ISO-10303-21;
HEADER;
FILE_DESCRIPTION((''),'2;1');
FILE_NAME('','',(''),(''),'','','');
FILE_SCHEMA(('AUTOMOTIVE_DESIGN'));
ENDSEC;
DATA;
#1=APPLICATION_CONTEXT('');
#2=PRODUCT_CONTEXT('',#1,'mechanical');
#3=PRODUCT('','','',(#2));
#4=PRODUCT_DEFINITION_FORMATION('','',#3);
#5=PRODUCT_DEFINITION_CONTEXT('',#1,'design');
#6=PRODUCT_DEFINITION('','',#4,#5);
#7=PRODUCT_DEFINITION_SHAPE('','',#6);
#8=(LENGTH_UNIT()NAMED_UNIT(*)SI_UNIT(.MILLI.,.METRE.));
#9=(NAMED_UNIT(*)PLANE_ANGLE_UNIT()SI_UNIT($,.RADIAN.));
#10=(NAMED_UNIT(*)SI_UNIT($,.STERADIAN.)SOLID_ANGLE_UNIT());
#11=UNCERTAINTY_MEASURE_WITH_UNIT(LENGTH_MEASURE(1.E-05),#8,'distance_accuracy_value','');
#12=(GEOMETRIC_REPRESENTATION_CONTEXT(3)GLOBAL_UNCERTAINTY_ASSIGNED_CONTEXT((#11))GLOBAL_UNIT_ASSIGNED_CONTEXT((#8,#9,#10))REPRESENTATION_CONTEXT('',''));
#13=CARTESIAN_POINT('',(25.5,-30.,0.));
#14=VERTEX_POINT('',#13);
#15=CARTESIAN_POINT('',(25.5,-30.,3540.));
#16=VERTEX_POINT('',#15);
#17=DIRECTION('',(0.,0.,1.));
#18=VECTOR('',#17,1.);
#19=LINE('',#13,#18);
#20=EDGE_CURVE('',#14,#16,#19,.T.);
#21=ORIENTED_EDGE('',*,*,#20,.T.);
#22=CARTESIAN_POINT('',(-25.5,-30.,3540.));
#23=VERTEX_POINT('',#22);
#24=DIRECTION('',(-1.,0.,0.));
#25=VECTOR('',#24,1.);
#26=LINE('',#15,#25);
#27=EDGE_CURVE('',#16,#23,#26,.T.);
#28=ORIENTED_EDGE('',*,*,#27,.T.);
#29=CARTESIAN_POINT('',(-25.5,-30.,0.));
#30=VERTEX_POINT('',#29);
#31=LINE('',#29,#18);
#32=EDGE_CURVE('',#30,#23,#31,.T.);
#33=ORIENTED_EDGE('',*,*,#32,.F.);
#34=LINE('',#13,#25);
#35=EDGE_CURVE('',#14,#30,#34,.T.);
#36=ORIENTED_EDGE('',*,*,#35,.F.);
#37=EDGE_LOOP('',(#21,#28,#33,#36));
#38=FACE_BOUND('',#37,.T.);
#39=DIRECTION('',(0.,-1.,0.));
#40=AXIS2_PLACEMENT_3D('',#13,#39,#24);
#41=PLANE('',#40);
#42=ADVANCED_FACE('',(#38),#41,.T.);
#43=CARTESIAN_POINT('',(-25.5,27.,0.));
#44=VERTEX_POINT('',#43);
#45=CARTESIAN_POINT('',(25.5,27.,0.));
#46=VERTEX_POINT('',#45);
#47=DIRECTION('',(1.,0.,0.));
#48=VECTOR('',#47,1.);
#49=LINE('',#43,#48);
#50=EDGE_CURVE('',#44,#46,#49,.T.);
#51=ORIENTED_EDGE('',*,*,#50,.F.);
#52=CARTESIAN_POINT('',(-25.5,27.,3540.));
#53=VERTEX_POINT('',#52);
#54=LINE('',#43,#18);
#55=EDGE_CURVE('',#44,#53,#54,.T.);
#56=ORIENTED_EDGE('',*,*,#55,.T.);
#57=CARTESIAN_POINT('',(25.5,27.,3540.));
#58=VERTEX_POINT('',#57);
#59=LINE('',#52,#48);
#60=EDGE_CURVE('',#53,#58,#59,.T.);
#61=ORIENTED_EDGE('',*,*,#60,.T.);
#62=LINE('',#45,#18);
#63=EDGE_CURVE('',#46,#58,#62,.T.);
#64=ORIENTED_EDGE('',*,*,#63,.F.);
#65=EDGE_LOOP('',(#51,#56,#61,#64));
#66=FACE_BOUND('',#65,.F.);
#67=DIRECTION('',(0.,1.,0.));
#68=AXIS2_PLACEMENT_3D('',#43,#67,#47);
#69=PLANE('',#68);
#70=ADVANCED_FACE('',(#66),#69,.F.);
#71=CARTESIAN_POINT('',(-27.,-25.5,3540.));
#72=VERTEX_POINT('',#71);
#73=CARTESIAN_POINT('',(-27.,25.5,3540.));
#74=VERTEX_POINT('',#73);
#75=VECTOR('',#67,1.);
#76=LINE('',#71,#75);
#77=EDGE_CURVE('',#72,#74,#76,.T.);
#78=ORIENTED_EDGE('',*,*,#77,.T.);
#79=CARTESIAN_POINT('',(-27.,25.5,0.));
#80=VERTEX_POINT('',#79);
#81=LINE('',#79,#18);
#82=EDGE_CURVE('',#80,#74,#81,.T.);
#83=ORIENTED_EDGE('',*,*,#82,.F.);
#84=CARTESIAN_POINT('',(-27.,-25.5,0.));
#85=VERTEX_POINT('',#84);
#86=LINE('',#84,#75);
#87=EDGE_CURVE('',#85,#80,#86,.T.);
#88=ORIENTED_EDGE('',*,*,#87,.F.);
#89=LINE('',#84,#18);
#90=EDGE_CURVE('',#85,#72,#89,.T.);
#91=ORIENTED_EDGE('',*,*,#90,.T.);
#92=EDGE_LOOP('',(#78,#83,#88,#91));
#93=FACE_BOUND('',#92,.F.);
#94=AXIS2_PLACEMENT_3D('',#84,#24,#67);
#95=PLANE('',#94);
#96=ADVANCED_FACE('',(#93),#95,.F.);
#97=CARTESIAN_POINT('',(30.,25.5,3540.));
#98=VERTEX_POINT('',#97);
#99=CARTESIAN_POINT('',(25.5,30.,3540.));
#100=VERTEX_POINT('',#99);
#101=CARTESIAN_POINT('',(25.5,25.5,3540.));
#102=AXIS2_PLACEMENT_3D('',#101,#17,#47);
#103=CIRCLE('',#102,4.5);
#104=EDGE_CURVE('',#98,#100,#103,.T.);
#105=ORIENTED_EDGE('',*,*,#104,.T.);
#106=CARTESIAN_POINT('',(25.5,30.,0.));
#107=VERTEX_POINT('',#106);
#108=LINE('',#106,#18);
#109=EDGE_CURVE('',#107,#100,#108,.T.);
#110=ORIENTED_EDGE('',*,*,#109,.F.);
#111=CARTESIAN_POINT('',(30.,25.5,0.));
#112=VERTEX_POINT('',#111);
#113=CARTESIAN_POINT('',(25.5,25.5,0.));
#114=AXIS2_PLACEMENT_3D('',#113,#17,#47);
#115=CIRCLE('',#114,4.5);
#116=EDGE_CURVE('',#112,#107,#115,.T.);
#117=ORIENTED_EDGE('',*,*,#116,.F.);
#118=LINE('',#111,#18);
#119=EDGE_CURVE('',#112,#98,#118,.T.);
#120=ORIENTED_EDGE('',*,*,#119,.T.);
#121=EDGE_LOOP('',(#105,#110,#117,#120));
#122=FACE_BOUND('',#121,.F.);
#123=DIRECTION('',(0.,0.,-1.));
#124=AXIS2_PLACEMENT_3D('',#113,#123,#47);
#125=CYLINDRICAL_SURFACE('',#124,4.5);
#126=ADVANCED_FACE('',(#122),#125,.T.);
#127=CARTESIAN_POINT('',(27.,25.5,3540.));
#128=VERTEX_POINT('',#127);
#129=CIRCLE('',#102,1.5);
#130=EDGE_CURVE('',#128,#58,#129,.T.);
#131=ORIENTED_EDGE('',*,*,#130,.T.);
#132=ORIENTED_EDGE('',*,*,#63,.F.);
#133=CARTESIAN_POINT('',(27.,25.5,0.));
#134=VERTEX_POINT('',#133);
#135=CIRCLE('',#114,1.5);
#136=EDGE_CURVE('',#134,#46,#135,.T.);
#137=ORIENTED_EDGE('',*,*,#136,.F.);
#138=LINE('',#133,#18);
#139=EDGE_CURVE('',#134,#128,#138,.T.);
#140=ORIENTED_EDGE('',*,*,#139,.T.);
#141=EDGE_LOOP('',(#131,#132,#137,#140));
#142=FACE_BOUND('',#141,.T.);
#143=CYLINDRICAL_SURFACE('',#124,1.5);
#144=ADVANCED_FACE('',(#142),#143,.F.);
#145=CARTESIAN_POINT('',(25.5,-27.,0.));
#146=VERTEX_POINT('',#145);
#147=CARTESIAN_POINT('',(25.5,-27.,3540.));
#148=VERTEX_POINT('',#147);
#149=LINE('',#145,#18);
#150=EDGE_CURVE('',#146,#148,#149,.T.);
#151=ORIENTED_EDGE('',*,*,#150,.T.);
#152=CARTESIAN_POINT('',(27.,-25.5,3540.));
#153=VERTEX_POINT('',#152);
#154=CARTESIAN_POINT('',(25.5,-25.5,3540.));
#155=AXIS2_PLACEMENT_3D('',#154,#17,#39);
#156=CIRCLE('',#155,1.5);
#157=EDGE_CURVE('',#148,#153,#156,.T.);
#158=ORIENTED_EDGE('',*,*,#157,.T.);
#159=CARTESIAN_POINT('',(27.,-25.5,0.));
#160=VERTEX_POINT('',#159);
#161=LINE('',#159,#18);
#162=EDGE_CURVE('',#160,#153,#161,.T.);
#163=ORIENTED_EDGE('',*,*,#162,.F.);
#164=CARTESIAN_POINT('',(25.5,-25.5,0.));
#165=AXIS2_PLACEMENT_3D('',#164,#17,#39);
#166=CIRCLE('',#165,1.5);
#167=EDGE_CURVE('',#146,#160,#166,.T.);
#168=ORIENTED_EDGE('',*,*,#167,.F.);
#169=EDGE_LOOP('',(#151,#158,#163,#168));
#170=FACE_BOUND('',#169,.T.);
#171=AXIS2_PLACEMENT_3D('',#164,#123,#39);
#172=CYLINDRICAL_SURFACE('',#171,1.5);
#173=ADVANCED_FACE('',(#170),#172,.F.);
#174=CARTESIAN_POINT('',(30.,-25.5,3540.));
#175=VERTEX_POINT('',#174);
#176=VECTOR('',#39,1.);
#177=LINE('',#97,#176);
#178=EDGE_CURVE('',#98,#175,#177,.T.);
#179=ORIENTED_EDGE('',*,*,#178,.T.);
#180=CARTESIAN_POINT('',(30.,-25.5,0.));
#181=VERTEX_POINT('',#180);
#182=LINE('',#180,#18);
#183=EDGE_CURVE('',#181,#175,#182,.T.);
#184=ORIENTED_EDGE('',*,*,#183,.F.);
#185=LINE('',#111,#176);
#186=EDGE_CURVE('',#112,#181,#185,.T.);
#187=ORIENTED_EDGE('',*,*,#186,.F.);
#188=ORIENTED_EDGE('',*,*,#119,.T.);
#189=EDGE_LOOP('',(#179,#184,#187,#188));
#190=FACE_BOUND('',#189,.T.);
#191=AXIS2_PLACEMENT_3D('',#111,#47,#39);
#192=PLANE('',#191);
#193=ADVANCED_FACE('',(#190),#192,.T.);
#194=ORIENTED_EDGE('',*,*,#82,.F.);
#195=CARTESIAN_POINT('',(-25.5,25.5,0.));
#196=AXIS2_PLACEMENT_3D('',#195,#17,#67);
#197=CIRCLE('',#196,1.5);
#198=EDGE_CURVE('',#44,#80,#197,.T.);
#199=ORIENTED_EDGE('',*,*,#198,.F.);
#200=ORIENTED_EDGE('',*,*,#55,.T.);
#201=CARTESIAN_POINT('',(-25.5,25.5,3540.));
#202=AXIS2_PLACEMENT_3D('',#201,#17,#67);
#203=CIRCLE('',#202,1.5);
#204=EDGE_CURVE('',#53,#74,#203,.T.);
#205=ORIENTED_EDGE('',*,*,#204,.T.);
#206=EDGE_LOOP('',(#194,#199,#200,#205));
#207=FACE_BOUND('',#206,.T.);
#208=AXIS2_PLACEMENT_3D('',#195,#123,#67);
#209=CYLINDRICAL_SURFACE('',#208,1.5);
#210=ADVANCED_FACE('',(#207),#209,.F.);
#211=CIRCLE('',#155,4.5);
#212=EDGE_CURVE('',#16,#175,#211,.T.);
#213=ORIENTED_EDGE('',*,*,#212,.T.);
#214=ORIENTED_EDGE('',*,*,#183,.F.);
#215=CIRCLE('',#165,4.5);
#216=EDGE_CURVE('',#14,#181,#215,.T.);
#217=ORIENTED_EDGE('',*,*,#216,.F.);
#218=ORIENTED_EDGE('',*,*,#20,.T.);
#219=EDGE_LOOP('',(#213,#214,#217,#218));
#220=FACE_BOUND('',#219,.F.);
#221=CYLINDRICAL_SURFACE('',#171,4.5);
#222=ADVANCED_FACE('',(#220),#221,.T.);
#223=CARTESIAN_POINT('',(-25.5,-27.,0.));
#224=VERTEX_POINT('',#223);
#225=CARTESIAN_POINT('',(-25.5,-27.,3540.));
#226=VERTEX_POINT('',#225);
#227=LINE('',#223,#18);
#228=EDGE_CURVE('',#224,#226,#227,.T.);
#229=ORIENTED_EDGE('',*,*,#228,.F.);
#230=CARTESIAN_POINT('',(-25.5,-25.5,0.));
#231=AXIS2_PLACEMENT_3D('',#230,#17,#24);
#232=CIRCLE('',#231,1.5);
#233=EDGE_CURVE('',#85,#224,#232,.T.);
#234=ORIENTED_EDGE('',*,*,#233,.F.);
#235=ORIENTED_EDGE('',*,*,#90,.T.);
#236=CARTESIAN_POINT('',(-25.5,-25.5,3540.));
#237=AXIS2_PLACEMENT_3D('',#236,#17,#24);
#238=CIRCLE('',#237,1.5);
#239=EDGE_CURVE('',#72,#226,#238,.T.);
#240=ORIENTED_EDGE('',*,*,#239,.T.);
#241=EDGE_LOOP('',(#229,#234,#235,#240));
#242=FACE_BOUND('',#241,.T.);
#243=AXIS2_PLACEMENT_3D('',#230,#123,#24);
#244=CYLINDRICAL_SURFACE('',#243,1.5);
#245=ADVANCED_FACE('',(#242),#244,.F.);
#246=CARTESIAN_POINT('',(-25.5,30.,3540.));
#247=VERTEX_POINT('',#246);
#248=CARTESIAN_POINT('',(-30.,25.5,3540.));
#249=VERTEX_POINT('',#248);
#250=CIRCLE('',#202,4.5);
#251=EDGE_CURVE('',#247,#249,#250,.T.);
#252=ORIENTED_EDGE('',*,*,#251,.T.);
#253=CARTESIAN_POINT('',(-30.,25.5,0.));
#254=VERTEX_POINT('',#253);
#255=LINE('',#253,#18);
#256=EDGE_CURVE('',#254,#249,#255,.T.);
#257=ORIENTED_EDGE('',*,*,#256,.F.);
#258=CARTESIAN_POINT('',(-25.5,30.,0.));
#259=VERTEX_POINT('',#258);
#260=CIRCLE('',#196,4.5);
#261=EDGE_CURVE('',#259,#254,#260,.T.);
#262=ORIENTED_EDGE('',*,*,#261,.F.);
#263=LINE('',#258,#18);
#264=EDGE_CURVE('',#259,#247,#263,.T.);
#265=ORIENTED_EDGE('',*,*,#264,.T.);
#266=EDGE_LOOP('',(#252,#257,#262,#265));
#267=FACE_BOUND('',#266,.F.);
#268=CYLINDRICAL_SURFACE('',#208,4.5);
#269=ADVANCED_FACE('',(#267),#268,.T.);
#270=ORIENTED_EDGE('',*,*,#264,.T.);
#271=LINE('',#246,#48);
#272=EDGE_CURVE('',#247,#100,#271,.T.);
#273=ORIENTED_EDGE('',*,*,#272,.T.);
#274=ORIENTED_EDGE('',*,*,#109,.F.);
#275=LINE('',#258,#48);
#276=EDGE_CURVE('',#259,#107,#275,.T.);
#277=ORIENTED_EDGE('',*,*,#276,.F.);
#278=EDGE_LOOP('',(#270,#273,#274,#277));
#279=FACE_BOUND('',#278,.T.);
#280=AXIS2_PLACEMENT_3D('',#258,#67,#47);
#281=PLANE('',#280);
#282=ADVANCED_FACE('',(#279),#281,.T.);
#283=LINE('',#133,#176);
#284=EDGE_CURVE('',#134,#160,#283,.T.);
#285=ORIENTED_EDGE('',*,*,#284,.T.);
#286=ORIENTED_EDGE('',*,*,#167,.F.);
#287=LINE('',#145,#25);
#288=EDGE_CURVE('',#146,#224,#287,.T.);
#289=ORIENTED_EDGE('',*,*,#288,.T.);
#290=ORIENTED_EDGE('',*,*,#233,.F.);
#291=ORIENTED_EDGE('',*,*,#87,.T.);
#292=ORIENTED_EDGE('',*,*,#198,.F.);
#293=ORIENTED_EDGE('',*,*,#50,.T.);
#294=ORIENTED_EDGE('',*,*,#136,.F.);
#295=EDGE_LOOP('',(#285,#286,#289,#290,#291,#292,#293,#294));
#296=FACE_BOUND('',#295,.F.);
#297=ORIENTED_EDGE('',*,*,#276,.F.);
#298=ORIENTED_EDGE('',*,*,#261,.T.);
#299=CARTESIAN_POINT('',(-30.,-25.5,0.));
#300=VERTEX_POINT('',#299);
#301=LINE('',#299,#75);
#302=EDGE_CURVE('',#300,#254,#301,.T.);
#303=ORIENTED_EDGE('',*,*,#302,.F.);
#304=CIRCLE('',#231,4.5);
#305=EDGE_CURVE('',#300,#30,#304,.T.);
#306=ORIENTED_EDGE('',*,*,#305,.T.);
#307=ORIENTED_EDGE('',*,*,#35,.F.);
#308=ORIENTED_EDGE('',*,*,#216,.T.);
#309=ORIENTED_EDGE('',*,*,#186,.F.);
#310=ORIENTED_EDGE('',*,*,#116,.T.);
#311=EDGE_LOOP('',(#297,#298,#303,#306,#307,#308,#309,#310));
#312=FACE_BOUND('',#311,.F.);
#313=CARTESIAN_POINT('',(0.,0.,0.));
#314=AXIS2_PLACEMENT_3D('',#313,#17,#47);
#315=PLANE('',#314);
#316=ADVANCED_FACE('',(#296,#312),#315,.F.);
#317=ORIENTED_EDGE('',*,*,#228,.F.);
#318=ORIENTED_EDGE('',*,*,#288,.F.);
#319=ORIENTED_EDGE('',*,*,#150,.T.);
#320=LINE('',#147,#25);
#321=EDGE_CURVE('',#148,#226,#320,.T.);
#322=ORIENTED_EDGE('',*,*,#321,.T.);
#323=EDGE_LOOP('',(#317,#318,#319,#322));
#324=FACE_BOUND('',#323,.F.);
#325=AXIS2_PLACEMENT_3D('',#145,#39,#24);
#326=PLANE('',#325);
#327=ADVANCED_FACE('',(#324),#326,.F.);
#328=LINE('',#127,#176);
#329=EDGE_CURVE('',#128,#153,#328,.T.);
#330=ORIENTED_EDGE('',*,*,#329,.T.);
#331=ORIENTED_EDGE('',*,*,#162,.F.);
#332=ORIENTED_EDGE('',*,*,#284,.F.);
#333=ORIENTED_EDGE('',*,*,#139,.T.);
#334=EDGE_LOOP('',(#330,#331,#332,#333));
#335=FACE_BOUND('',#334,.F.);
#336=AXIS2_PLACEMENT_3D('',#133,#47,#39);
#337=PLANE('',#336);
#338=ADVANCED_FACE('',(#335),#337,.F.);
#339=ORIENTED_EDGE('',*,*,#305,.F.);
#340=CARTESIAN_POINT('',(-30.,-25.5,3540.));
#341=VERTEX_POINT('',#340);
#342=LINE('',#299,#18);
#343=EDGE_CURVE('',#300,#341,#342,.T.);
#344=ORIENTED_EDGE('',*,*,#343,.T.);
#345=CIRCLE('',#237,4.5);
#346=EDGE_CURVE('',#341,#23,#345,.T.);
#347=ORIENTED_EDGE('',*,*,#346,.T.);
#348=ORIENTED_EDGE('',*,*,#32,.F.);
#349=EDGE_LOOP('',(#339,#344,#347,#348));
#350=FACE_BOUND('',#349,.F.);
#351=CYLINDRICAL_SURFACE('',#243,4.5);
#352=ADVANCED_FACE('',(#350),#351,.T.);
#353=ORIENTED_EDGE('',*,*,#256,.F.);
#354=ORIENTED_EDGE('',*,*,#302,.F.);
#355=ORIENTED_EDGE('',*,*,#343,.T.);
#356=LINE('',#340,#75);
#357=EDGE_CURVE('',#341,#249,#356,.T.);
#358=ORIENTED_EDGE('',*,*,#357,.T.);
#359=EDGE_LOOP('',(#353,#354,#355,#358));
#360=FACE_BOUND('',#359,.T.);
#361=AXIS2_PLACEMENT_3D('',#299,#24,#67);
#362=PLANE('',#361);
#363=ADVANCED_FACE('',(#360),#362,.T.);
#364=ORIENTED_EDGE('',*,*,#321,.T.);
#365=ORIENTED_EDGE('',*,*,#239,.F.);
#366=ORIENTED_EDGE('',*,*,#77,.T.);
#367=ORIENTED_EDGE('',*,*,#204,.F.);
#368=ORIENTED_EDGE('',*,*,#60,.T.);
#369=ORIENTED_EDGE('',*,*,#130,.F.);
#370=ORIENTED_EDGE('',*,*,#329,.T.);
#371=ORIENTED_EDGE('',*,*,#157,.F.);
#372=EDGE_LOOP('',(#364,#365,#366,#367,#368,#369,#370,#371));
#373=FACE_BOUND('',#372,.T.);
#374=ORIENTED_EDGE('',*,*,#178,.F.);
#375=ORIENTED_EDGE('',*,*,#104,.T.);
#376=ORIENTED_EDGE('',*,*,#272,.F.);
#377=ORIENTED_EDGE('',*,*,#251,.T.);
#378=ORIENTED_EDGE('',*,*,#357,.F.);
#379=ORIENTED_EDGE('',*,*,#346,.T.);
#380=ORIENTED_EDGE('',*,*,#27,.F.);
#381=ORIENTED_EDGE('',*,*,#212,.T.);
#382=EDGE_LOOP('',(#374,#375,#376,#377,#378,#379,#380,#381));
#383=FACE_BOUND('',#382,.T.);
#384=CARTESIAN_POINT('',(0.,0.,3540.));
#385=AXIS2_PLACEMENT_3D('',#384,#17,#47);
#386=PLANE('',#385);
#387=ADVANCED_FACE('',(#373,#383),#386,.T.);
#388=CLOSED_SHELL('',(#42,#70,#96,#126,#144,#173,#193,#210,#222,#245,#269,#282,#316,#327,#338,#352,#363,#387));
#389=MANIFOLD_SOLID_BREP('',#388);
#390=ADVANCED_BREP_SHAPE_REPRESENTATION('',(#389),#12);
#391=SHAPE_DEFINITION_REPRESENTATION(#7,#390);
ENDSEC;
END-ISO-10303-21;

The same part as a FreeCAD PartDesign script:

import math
import FreeCAD as App
import Part
import Sketcher
from FreeCAD import Vector
Q = App.Units.Quantity

doc = App.newDocument("Part")
params = doc.addObject("Spreadsheet::Sheet", "Params")
for row, (alias, value) in enumerate([
    ("sketch1_radius", "4.5 mm"),
    ("sketch1_radius2", "1.5 mm"),
    ("pad1_length", "3540 mm"),
], start=1):
    params.set(f"A{row}", alias)
    params.set(f"B{row}", "=" + value)
    params.setAlias(f"B{row}", alias)

body = doc.addObject("PartDesign::Body", "Body")

# Sketch on XY plane
sketch1 = doc.addObject("Sketcher::SketchObject", "Sketch")
body.addObject(sketch1)
sketch1.AttachmentSupport = (doc.XY_Plane, [""])
sketch1.MapMode = "FlatFace"
sketch1.addGeometry(Part.LineSegment(Vector(-30, 25.5, 0), Vector(-30, -25.5, 0)), False)
sketch1.addGeometry(Part.ArcOfCircle(Part.Circle(Vector(-25.5, -25.5, 0), Vector(0, 0, 1), 4.5), math.radians(180), math.radians(270)), False)
sketch1.addGeometry(Part.LineSegment(Vector(-25.5, -30, 0), Vector(25.5, -30, 0)), False)
sketch1.addGeometry(Part.ArcOfCircle(Part.Circle(Vector(25.5, -25.5, 0), Vector(0, 0, 1), 4.5), math.radians(-90), math.radians(0)), False)
sketch1.addGeometry(Part.LineSegment(Vector(30, -25.5, 0), Vector(30, 25.5, 0)), False)
sketch1.addGeometry(Part.ArcOfCircle(Part.Circle(Vector(25.5, 25.5, 0), Vector(0, 0, 1), 4.5), math.radians(0), math.radians(90)), False)
sketch1.addGeometry(Part.LineSegment(Vector(25.5, 30, 0), Vector(-25.5, 30, 0)), False)
sketch1.addGeometry(Part.ArcOfCircle(Part.Circle(Vector(-25.5, 25.5, 0), Vector(0, 0, 1), 4.5), math.radians(90), math.radians(180)), False)
sketch1.addGeometry(Part.ArcOfCircle(Part.Circle(Vector(-25.5, 25.5, 0), Vector(0, 0, 1), 1.5), math.radians(90), math.radians(180)), False)
sketch1.addGeometry(Part.LineSegment(Vector(-25.5, 27, 0), Vector(25.5, 27, 0)), False)
sketch1.addGeometry(Part.ArcOfCircle(Part.Circle(Vector(25.5, 25.5, 0), Vector(0, 0, 1), 1.5), math.radians(0), math.radians(90)), False)
sketch1.addGeometry(Part.LineSegment(Vector(27, 25.5, 0), Vector(27, -25.5, 0)), False)
sketch1.addGeometry(Part.ArcOfCircle(Part.Circle(Vector(25.5, -25.5, 0), Vector(0, 0, 1), 1.5), math.radians(-90), math.radians(0)), False)
sketch1.addGeometry(Part.LineSegment(Vector(25.5, -27, 0), Vector(-25.5, -27, 0)), False)
sketch1.addGeometry(Part.ArcOfCircle(Part.Circle(Vector(-25.5, -25.5, 0), Vector(0, 0, 1), 1.5), math.radians(180), math.radians(270)), False)
sketch1.addGeometry(Part.LineSegment(Vector(-27, -25.5, 0), Vector(-27, 25.5, 0)), False)
sketch1.addConstraint(Sketcher.Constraint("Tangent", 0, 2, 1, 1))
sketch1.addConstraint(Sketcher.Constraint("Tangent", 1, 2, 2, 1))
sketch1.addConstraint(Sketcher.Constraint("Tangent", 2, 2, 3, 1))
sketch1.addConstraint(Sketcher.Constraint("Tangent", 3, 2, 4, 1))
sketch1.addConstraint(Sketcher.Constraint("Tangent", 4, 2, 5, 1))
sketch1.addConstraint(Sketcher.Constraint("Tangent", 5, 2, 6, 1))
sketch1.addConstraint(Sketcher.Constraint("Tangent", 6, 2, 7, 1))
sketch1.addConstraint(Sketcher.Constraint("Tangent", 7, 2, 0, 1))
sketch1.addConstraint(Sketcher.Constraint("Tangent", 8, 1, 9, 1))
sketch1.addConstraint(Sketcher.Constraint("Tangent", 9, 2, 10, 2))
sketch1.addConstraint(Sketcher.Constraint("Tangent", 10, 1, 11, 1))
sketch1.addConstraint(Sketcher.Constraint("Tangent", 11, 2, 12, 2))
sketch1.addConstraint(Sketcher.Constraint("Tangent", 12, 1, 13, 1))
sketch1.addConstraint(Sketcher.Constraint("Tangent", 13, 2, 14, 2))
sketch1.addConstraint(Sketcher.Constraint("Tangent", 14, 1, 15, 1))
sketch1.addConstraint(Sketcher.Constraint("Tangent", 15, 2, 8, 2))
sketch1.addConstraint(Sketcher.Constraint("Vertical", 0))
sketch1.addConstraint(Sketcher.Constraint("Horizontal", 2))
sketch1.addConstraint(Sketcher.Constraint("Vertical", 4))
sketch1.addConstraint(Sketcher.Constraint("Horizontal", 6))
sketch1.addConstraint(Sketcher.Constraint("Horizontal", 9))
sketch1.addConstraint(Sketcher.Constraint("Vertical", 11))
sketch1.addConstraint(Sketcher.Constraint("Horizontal", 13))
sketch1.addConstraint(Sketcher.Constraint("Vertical", 15))
sketch1.addConstraint(Sketcher.Constraint("Coincident", 8, 3, 7, 3))
sketch1.addConstraint(Sketcher.Constraint("Coincident", 10, 3, 5, 3))
sketch1.addConstraint(Sketcher.Constraint("Coincident", 12, 3, 3, 3))
sketch1.addConstraint(Sketcher.Constraint("Equal", 1, 3))
sketch1.addConstraint(Sketcher.Constraint("Equal", 3, 5))
sketch1.addConstraint(Sketcher.Constraint("Equal", 5, 7))
sketch1.addConstraint(Sketcher.Constraint("Equal", 12, 14))
sketch1.addConstraint(Sketcher.Constraint("Symmetric", 1, 3, 5, 3, -1, 1))
sketch1.addConstraint(Sketcher.Constraint("Equal", 13, 0))
sketch1.addConstraint(Sketcher.Constraint("Radius", 1, Q("4.5 mm")))
sketch1.addConstraint(Sketcher.Constraint("Radius", 8, Q("1.5 mm")))
sketch1.addConstraint(Sketcher.Constraint("DistanceX", 0, 2, -1, 1, Q("30 mm")))
sketch1.setExpression("Constraints[33]", "Params.sketch1_radius")
sketch1.setExpression("Constraints[34]", "Params.sketch1_radius2")
pad1 = doc.addObject("PartDesign::Pad", "Pad")
body.addObject(pad1)
pad1.Profile = sketch1
pad1.setExpression("Length", "Params.pad1_length")

doc.recompute()
